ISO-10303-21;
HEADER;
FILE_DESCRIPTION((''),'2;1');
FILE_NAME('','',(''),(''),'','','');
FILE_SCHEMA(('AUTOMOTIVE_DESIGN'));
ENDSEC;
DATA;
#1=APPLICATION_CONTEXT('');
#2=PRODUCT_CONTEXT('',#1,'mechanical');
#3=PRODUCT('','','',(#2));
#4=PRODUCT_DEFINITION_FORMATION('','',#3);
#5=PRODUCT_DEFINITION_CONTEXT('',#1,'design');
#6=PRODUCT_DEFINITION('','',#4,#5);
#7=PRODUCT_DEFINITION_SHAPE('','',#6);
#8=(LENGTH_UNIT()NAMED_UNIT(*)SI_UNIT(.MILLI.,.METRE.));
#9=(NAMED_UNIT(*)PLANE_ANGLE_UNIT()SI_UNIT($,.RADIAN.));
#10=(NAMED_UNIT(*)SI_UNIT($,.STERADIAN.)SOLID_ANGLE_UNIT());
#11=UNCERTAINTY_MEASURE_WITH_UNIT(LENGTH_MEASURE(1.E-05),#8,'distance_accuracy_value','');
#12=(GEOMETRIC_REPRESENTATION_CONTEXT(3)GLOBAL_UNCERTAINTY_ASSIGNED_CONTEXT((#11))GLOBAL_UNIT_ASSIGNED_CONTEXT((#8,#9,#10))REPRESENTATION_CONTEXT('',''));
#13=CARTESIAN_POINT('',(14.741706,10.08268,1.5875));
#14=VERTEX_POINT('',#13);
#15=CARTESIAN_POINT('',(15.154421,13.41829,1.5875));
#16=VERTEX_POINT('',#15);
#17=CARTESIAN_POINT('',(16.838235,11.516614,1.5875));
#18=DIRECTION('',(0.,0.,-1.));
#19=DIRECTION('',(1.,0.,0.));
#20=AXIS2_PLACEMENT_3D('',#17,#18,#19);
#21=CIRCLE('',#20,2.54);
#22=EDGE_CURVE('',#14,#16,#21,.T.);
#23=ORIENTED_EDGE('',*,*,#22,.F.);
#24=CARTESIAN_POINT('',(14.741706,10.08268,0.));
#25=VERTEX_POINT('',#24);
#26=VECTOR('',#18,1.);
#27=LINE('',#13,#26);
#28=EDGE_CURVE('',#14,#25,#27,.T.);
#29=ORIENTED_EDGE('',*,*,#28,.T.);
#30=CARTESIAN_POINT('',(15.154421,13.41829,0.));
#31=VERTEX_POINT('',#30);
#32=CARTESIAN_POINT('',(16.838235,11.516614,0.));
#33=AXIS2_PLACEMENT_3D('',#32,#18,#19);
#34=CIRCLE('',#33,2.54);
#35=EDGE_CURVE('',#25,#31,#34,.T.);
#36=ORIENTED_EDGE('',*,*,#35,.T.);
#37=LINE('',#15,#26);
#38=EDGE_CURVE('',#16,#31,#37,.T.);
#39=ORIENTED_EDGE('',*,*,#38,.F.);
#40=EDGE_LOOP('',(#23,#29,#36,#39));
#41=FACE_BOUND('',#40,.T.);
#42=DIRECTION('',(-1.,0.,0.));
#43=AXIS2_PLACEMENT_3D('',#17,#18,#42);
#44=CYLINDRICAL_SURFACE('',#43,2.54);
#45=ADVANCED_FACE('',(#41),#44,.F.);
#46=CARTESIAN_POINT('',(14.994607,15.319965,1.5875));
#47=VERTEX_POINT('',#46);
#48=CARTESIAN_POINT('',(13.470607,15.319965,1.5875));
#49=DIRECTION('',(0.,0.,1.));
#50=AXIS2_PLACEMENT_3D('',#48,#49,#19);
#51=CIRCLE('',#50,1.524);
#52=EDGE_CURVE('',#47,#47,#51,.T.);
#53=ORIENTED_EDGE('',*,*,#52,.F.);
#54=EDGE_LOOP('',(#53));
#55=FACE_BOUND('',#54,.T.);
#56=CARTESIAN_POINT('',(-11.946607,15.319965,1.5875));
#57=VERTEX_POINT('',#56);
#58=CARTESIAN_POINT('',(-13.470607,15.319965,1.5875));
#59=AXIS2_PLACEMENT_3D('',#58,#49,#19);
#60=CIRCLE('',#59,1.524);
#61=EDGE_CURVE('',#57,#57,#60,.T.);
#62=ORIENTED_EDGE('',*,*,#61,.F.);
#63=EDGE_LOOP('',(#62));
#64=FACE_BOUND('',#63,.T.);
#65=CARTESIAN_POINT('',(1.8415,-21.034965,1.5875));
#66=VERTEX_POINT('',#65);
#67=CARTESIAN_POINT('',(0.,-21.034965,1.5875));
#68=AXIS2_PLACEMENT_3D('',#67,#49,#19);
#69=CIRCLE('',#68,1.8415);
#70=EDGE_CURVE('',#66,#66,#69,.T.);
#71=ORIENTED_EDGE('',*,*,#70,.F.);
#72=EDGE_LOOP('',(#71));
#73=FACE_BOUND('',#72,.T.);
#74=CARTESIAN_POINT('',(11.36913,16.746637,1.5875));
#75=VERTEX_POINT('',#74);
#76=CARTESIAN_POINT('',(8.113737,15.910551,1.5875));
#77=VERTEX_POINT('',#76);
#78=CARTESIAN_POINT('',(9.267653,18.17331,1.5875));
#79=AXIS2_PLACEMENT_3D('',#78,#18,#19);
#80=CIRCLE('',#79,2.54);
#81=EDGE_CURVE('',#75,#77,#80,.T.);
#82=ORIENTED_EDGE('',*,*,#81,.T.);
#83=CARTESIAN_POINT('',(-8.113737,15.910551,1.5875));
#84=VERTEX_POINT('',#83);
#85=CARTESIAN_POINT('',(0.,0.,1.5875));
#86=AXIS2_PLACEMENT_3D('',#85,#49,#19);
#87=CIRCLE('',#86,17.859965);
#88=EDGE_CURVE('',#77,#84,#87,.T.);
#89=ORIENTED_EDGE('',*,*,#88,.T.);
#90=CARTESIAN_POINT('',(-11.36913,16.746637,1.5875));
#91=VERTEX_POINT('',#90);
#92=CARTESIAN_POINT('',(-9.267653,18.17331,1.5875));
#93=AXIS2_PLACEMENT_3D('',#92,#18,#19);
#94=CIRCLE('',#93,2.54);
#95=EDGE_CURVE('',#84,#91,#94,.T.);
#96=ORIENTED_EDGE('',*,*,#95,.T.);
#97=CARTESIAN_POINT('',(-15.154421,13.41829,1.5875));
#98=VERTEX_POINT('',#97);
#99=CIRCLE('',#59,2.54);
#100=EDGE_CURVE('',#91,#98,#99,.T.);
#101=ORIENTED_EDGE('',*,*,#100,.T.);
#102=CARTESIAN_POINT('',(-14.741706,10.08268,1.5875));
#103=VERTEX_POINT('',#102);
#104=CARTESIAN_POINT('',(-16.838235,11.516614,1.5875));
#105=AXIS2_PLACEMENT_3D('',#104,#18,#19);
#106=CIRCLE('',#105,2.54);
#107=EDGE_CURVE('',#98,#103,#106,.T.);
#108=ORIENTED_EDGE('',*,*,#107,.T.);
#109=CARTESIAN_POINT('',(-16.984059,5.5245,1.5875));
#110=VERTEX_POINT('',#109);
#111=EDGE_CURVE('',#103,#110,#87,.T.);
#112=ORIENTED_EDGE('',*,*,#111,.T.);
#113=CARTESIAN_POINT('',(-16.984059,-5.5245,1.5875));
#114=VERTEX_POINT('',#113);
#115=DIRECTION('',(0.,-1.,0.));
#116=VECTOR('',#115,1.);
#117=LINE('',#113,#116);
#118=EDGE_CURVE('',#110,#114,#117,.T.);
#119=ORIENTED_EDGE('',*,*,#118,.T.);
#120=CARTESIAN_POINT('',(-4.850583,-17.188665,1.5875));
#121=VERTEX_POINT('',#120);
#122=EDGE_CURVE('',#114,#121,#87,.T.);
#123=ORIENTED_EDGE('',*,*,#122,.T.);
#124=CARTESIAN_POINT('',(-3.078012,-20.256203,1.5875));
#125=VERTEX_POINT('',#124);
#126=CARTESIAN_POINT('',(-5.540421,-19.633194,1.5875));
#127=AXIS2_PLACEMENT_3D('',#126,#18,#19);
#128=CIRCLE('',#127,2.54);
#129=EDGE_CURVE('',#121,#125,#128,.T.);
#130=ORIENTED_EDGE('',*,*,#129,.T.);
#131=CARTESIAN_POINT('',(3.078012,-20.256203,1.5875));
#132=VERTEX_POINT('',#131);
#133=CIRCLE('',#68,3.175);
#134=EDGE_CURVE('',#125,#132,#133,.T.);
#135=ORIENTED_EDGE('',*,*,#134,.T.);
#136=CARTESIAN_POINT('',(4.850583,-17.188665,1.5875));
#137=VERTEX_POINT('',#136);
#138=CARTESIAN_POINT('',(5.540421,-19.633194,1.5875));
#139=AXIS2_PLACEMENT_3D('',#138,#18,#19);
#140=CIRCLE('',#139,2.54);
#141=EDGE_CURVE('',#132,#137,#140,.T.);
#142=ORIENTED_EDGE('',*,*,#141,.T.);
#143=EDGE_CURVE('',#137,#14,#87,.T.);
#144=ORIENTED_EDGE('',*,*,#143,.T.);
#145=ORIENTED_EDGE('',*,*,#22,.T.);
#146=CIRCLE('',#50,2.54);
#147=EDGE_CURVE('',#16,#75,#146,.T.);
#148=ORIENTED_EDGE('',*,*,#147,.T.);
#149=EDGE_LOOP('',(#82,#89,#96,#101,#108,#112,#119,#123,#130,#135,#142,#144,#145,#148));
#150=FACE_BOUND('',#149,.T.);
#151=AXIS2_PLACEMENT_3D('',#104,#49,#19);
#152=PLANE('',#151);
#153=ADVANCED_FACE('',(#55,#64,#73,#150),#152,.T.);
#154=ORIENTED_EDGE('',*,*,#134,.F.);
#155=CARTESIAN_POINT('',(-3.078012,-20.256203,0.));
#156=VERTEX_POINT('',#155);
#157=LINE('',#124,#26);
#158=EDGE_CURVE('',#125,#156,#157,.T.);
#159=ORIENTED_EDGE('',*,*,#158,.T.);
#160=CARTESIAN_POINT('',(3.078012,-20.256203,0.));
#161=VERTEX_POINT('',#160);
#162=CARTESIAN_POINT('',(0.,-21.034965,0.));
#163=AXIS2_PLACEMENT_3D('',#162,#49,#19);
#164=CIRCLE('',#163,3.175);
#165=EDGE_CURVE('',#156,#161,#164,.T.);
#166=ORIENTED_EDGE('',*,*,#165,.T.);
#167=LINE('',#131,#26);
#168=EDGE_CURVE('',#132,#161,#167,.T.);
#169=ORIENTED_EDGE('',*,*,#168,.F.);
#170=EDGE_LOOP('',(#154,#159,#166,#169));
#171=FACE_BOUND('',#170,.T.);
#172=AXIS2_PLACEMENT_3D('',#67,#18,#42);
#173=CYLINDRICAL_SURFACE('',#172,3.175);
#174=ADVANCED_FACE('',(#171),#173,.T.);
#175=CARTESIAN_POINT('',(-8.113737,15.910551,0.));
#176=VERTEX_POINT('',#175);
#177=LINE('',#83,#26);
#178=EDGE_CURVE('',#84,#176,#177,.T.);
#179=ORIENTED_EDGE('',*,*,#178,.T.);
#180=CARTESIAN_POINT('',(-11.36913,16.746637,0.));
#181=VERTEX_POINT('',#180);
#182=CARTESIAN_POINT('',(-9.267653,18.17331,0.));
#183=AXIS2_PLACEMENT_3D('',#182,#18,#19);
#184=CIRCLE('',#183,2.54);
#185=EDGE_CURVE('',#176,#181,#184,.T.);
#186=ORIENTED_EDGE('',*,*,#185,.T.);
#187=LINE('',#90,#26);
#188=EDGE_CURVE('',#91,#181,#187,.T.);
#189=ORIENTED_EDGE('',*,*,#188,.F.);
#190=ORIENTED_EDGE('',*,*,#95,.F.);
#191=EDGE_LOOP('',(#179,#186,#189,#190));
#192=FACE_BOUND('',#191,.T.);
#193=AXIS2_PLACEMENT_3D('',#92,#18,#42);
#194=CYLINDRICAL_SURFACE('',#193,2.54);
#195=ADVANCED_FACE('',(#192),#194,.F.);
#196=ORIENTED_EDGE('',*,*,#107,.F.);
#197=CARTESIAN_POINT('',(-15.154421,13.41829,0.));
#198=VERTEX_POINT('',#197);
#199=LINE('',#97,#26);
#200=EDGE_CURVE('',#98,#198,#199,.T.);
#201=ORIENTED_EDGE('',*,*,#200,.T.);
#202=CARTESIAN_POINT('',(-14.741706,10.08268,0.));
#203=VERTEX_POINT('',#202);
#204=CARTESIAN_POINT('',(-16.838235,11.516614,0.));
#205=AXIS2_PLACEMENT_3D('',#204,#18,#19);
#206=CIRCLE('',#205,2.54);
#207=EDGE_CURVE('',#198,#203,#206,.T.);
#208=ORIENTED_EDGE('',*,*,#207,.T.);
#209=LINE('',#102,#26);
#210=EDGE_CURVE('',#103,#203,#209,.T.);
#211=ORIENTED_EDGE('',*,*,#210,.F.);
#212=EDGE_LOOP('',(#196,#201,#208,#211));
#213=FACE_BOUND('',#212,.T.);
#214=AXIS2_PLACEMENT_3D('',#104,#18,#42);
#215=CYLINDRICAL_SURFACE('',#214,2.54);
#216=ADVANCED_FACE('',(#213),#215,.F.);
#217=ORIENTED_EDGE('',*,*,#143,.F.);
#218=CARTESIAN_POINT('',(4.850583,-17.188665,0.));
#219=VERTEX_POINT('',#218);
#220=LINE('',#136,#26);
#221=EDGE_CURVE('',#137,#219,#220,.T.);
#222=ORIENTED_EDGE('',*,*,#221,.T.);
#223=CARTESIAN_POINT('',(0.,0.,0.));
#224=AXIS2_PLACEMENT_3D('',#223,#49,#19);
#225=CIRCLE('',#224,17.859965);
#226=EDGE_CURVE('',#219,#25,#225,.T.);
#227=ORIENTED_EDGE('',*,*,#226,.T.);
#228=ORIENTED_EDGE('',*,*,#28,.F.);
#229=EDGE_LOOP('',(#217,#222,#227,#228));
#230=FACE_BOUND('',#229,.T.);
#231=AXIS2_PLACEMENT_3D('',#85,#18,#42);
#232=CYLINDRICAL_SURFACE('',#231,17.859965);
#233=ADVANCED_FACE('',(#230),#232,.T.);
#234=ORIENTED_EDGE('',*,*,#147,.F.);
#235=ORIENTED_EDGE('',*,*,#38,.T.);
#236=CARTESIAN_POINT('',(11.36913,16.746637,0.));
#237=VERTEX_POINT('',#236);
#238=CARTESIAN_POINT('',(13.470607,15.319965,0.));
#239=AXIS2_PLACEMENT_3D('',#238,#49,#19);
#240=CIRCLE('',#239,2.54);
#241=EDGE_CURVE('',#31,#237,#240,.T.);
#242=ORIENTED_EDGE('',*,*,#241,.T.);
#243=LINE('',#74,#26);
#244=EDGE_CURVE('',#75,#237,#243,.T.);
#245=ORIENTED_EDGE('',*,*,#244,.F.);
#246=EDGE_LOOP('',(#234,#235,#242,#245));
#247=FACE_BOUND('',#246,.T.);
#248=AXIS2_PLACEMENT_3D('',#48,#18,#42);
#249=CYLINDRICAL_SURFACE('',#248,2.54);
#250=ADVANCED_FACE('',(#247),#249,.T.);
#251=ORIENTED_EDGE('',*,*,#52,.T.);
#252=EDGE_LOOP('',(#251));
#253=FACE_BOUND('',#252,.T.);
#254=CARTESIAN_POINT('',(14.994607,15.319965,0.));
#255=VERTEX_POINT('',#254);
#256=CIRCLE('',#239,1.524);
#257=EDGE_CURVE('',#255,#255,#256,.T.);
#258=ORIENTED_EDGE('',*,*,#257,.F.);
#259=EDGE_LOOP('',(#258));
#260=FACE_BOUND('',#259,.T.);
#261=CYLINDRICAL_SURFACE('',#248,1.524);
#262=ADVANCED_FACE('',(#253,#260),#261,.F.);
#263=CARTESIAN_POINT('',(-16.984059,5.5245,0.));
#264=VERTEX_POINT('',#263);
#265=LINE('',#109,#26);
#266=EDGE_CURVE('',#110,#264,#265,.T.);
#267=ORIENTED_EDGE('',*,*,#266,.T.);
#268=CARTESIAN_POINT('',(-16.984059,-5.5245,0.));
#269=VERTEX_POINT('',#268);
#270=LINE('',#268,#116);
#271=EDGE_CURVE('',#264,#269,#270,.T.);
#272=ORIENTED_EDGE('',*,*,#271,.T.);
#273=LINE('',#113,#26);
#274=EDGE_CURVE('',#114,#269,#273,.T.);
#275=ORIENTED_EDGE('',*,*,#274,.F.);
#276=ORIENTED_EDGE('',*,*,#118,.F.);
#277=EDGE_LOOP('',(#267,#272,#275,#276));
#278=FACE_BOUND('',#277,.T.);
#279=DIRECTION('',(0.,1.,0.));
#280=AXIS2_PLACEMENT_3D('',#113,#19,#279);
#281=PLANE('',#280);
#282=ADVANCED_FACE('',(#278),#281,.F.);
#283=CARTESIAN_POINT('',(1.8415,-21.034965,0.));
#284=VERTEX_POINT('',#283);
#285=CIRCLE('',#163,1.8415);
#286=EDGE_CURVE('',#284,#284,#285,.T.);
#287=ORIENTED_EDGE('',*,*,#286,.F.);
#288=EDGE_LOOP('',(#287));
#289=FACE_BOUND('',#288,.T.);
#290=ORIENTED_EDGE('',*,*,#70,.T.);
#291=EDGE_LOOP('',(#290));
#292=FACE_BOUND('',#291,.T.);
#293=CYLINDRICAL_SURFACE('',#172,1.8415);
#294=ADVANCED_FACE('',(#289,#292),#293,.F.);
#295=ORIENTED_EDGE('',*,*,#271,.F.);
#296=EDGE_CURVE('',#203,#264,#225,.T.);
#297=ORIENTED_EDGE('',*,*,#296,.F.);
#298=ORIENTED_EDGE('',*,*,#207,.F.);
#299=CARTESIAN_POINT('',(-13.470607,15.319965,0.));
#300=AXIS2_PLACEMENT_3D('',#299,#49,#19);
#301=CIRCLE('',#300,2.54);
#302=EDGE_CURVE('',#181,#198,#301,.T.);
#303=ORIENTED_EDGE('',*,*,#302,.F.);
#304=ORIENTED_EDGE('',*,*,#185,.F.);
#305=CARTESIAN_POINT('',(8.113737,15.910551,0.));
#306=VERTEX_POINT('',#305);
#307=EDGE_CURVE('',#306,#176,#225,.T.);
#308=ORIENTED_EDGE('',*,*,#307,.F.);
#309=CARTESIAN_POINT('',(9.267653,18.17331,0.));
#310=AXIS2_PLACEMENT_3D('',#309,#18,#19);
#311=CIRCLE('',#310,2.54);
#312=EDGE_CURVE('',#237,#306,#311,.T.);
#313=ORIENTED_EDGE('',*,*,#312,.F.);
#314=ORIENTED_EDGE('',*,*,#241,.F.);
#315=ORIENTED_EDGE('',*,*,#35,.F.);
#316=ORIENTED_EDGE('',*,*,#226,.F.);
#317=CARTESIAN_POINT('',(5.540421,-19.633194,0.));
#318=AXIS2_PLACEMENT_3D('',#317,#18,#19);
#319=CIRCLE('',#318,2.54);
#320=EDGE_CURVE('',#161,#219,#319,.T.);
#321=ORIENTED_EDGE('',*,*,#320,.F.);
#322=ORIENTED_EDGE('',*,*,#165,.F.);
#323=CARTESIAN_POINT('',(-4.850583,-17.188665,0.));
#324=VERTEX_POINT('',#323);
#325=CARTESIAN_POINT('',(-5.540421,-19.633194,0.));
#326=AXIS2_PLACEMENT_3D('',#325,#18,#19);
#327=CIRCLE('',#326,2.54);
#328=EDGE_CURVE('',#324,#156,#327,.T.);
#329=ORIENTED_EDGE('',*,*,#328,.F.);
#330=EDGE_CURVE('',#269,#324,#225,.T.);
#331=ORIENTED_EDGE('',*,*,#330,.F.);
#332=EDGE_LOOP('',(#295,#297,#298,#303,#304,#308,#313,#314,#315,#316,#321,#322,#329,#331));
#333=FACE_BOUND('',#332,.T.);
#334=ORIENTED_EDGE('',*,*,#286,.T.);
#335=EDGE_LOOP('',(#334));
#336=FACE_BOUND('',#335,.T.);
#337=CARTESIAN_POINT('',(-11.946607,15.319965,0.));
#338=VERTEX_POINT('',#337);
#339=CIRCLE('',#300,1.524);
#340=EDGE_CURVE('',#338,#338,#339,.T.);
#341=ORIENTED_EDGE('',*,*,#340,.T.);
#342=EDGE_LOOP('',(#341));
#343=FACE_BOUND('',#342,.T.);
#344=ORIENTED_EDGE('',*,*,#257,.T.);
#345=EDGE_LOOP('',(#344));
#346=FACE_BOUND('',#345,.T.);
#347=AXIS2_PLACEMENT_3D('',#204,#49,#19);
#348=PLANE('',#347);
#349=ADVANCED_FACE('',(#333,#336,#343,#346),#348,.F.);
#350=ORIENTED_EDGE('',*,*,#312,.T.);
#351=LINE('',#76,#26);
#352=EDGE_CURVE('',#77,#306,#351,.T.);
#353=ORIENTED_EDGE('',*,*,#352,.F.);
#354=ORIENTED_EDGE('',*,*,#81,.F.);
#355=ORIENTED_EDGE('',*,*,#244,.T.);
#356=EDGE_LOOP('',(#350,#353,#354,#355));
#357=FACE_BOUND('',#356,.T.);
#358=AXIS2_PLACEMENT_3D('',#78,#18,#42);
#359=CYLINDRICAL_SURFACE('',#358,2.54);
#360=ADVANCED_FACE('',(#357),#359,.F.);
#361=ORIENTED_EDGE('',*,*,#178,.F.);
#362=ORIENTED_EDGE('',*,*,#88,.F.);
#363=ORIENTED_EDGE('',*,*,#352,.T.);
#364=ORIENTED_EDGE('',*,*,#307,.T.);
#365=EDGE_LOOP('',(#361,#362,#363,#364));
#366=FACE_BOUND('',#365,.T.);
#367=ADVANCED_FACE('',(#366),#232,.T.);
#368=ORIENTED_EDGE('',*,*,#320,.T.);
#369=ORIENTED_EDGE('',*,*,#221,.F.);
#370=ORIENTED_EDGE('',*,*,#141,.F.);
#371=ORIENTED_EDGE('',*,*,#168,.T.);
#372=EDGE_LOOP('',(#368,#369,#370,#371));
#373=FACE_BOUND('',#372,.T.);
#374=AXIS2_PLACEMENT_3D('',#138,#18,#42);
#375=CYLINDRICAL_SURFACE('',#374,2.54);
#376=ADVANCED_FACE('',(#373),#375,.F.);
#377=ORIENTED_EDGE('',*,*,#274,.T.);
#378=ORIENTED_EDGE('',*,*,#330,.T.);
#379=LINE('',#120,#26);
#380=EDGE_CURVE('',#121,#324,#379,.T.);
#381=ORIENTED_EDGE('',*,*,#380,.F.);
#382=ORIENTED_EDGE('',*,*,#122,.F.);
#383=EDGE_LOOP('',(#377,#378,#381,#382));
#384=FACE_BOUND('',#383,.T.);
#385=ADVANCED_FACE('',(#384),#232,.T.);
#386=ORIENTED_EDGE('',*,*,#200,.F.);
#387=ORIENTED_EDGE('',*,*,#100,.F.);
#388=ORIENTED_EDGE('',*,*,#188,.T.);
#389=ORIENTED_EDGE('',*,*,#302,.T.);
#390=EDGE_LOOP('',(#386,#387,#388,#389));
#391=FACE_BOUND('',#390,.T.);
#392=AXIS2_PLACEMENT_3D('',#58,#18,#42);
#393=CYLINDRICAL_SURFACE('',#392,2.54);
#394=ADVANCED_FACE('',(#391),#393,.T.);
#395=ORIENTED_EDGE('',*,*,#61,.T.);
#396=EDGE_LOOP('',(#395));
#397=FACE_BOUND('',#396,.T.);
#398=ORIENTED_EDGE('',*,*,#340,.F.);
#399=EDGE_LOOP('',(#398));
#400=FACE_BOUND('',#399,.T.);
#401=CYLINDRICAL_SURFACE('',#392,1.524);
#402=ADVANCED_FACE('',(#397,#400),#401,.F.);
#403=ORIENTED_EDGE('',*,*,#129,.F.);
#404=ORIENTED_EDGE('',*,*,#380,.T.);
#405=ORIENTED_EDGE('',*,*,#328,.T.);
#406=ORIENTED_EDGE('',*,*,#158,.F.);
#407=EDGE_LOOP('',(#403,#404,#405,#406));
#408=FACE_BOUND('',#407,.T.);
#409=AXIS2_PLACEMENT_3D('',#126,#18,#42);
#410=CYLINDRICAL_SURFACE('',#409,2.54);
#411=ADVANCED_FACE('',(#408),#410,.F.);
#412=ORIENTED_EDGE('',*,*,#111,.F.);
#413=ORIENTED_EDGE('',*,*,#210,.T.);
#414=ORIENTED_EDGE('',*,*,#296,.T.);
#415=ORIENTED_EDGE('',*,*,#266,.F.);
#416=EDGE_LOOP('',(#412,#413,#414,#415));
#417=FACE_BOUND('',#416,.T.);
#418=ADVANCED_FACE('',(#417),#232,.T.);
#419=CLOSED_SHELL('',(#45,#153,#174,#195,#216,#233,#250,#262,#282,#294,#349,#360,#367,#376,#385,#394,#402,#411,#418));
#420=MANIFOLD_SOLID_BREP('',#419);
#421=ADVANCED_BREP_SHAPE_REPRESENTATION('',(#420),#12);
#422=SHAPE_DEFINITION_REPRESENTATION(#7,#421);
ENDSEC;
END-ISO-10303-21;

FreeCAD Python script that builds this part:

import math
import FreeCAD as App
import Part
import Sketcher

V = App.Vector
Q = App.Units.Quantity

doc = App.newDocument("Part")
body = doc.addObject("PartDesign::Body", "Body")

# Sketch on XY plane
sketch1 = body.newObject("Sketcher::SketchObject", "Sketch")
sketch1.AttachmentSupport = (doc.getObject("XY_Plane"), [""])
sketch1.MapMode = "FlatFace"
sketch1.addGeometry(Part.LineSegment(V(-17, 5.5, 0), V(-17, -5.5, 0)), False)
sketch1.addGeometry(Part.ArcOfCircle(Part.Circle(V(0, 0, 0), V(0, 0, 1), 17.9), math.radians(-162), math.radians(-106)), False)
sketch1.addGeometry(Part.ArcOfCircle(Part.Circle(V(-5.5, -19.6, 0), V(0, 0, 1), 2.5), math.radians(-14), math.radians(74)), False)
sketch1.addGeometry(Part.ArcOfCircle(Part.Circle(V(0, -21, 0), V(0, 0, 1), 3.2), math.radians(166), math.radians(374)), False)
sketch1.addGeometry(Part.ArcOfCircle(Part.Circle(V(5.5, -19.6, 0), V(0, 0, 1), 2.5), math.radians(106), math.radians(194)), False)
sketch1.addGeometry(Part.ArcOfCircle(Part.Circle(V(0, 0, 0), V(0, 0, 1), 17.9), math.radians(-74), math.radians(34)), False)
sketch1.addGeometry(Part.ArcOfCircle(Part.Circle(V(16.8, 11.5, 0), V(0, 0, 1), 2.5), math.radians(132), math.radians(214)), False)
sketch1.addGeometry(Part.ArcOfCircle(Part.Circle(V(13.5, 15.3, 0), V(0, 0, 1), 2.5), math.radians(-48), math.radians(146)), False)
sketch1.addGeometry(Part.ArcOfCircle(Part.Circle(V(9.3, 18.2, 0), V(0, 0, 1), 2.5), math.radians(-117), math.radians(-34)), False)
sketch1.addGeometry(Part.ArcOfCircle(Part.Circle(V(0, 0, 0), V(0, 0, 1), 17.9), math.radians(63), math.radians(117)), False)
sketch1.addGeometry(Part.ArcOfCircle(Part.Circle(V(-9.3, 18.2, 0), V(0, 0, 1), 2.5), math.radians(-146), math.radians(-63)), False)
sketch1.addGeometry(Part.ArcOfCircle(Part.Circle(V(-13.5, 15.3, 0), V(0, 0, 1), 2.5), math.radians(34), math.radians(228)), False)
sketch1.addGeometry(Part.ArcOfCircle(Part.Circle(V(-16.8, 11.5, 0), V(0, 0, 1), 2.5), math.radians(-34), math.radians(48)), False)
sketch1.addGeometry(Part.ArcOfCircle(Part.Circle(V(0, 0, 0), V(0, 0, 1), 17.9), math.radians(145.63), math.radians(161.98)), False)
sketch1.addGeometry(Part.Circle(V(0, -21, 0), V(0, 0, 1), 1.8), False)
sketch1.addGeometry(Part.Circle(V(13.5, 15.3, 0), V(0, 0, 1), 1.5), False)
sketch1.addGeometry(Part.Circle(V(-13.5, 15.3, 0), V(0, 0, 1), 1.5), False)
sketch1.addConstraint(Sketcher.Constraint("Coincident", 0, 2, 1, 1))
sketch1.addConstraint(Sketcher.Constraint("Tangent", 1, 2, 2, 2))
sketch1.addConstraint(Sketcher.Constraint("Tangent", 2, 1, 3, 1))
sketch1.addConstraint(Sketcher.Constraint("Tangent", 3, 2, 4, 2))
sketch1.addConstraint(Sketcher.Constraint("Tangent", 4, 1, 5, 1))
sketch1.addConstraint(Sketcher.Constraint("Tangent", 5, 2, 6, 2))
sketch1.addConstraint(Sketcher.Constraint("Tangent", 6, 1, 7, 1))
sketch1.addConstraint(Sketcher.Constraint("Tangent", 7, 2, 8, 2))
sketch1.addConstraint(Sketcher.Constraint("Tangent", 8, 1, 9, 1))
sketch1.addConstraint(Sketcher.Constraint("Tangent", 9, 2, 10, 2))
sketch1.addConstraint(Sketcher.Constraint("Tangent", 10, 1, 11, 1))
sketch1.addConstraint(Sketcher.Constraint("Tangent", 11, 2, 12, 2))
sketch1.addConstraint(Sketcher.Constraint("Tangent", 12, 1, 13, 1))
sketch1.addConstraint(Sketcher.Constraint("Coincident", 13, 2, 0, 1))
sketch1.addConstraint(Sketcher.Constraint("Vertical", 0))
sketch1.addConstraint(Sketcher.Constraint("Coincident", 1, 3, -1, 1))
sketch1.addConstraint(Sketcher.Constraint("Coincident", 5, 3, -1, 1))
sketch1.addConstraint(Sketcher.Constraint("Coincident", 9, 3, -1, 1))
sketch1.addConstraint(Sketcher.Constraint("Coincident", 13, 3, -1, 1))
sketch1.addConstraint(Sketcher.Constraint("Coincident", 14, 3, 3, 3))
sketch1.addConstraint(Sketcher.Constraint("Coincident", 15, 3, 7, 3))
sketch1.addConstraint(Sketcher.Constraint("Coincident", 16, 3, 11, 3))
sketch1.addConstraint(Sketcher.Constraint("Equal", 2, 4))
sketch1.addConstraint(Sketcher.Constraint("Equal", 1, 5))
sketch1.addConstraint(Sketcher.Constraint("Equal", 4, 6))
sketch1.addConstraint(Sketcher.Constraint("Equal", 6, 7))
sketch1.addConstraint(Sketcher.Constraint("Equal", 7, 8))
sketch1.addConstraint(Sketcher.Constraint("Equal", 5, 9))
sketch1.addConstraint(Sketcher.Constraint("Equal", 8, 10))
sketch1.addConstraint(Sketcher.Constraint("Equal", 10, 11))
sketch1.addConstraint(Sketcher.Constraint("Equal", 11, 12))
sketch1.addConstraint(Sketcher.Constraint("Equal", 9, 13))
sketch1.addConstraint(Sketcher.Constraint("Equal", 15, 16))
sketch1.addConstraint(Sketcher.Constraint("Symmetric", 7, 3, 11, 3, -2))
sketch1.addConstraint(Sketcher.Constraint("PointOnObject", 3, 3, -2))
sketch1.addConstraint(Sketcher.Constraint("Radius", 2, Q("0.1 in")))
sketch1.addConstraint(Sketcher.Constraint("Diameter", 15, Q("0.12 in")))
sketch1.addConstraint(Sketcher.Constraint("Diameter", 14, Q("0.145 in")))
sketch1.addConstraint(Sketcher.Constraint("Radius", 3, Q("0.125 in")))
sketch1.addConstraint(Sketcher.Constraint("DistanceY", 0, 2, 0, 1, Q("0.435 in")))
sketch1.addConstraint(Sketcher.Constraint("Radius", 1, Q("17.859965 mm")))
sketch1.addConstraint(Sketcher.Constraint("DistanceY", 3, 3, 1, 2, Q("3.8463 mm")))
sketch1.addConstraint(Sketcher.Constraint("DistanceX", 15, 3, 5, 2, Q("1.2711 mm")))
sketch1.addConstraint(Sketcher.Constraint("DistanceX", 12, 3, 9, 2, Q("8.724498 mm")))
pad1 = body.newObject("PartDesign::Pad", "Pad")
pad1.Profile = sketch1
pad1.Length = Q("0.0625 in")

doc.recompute()
